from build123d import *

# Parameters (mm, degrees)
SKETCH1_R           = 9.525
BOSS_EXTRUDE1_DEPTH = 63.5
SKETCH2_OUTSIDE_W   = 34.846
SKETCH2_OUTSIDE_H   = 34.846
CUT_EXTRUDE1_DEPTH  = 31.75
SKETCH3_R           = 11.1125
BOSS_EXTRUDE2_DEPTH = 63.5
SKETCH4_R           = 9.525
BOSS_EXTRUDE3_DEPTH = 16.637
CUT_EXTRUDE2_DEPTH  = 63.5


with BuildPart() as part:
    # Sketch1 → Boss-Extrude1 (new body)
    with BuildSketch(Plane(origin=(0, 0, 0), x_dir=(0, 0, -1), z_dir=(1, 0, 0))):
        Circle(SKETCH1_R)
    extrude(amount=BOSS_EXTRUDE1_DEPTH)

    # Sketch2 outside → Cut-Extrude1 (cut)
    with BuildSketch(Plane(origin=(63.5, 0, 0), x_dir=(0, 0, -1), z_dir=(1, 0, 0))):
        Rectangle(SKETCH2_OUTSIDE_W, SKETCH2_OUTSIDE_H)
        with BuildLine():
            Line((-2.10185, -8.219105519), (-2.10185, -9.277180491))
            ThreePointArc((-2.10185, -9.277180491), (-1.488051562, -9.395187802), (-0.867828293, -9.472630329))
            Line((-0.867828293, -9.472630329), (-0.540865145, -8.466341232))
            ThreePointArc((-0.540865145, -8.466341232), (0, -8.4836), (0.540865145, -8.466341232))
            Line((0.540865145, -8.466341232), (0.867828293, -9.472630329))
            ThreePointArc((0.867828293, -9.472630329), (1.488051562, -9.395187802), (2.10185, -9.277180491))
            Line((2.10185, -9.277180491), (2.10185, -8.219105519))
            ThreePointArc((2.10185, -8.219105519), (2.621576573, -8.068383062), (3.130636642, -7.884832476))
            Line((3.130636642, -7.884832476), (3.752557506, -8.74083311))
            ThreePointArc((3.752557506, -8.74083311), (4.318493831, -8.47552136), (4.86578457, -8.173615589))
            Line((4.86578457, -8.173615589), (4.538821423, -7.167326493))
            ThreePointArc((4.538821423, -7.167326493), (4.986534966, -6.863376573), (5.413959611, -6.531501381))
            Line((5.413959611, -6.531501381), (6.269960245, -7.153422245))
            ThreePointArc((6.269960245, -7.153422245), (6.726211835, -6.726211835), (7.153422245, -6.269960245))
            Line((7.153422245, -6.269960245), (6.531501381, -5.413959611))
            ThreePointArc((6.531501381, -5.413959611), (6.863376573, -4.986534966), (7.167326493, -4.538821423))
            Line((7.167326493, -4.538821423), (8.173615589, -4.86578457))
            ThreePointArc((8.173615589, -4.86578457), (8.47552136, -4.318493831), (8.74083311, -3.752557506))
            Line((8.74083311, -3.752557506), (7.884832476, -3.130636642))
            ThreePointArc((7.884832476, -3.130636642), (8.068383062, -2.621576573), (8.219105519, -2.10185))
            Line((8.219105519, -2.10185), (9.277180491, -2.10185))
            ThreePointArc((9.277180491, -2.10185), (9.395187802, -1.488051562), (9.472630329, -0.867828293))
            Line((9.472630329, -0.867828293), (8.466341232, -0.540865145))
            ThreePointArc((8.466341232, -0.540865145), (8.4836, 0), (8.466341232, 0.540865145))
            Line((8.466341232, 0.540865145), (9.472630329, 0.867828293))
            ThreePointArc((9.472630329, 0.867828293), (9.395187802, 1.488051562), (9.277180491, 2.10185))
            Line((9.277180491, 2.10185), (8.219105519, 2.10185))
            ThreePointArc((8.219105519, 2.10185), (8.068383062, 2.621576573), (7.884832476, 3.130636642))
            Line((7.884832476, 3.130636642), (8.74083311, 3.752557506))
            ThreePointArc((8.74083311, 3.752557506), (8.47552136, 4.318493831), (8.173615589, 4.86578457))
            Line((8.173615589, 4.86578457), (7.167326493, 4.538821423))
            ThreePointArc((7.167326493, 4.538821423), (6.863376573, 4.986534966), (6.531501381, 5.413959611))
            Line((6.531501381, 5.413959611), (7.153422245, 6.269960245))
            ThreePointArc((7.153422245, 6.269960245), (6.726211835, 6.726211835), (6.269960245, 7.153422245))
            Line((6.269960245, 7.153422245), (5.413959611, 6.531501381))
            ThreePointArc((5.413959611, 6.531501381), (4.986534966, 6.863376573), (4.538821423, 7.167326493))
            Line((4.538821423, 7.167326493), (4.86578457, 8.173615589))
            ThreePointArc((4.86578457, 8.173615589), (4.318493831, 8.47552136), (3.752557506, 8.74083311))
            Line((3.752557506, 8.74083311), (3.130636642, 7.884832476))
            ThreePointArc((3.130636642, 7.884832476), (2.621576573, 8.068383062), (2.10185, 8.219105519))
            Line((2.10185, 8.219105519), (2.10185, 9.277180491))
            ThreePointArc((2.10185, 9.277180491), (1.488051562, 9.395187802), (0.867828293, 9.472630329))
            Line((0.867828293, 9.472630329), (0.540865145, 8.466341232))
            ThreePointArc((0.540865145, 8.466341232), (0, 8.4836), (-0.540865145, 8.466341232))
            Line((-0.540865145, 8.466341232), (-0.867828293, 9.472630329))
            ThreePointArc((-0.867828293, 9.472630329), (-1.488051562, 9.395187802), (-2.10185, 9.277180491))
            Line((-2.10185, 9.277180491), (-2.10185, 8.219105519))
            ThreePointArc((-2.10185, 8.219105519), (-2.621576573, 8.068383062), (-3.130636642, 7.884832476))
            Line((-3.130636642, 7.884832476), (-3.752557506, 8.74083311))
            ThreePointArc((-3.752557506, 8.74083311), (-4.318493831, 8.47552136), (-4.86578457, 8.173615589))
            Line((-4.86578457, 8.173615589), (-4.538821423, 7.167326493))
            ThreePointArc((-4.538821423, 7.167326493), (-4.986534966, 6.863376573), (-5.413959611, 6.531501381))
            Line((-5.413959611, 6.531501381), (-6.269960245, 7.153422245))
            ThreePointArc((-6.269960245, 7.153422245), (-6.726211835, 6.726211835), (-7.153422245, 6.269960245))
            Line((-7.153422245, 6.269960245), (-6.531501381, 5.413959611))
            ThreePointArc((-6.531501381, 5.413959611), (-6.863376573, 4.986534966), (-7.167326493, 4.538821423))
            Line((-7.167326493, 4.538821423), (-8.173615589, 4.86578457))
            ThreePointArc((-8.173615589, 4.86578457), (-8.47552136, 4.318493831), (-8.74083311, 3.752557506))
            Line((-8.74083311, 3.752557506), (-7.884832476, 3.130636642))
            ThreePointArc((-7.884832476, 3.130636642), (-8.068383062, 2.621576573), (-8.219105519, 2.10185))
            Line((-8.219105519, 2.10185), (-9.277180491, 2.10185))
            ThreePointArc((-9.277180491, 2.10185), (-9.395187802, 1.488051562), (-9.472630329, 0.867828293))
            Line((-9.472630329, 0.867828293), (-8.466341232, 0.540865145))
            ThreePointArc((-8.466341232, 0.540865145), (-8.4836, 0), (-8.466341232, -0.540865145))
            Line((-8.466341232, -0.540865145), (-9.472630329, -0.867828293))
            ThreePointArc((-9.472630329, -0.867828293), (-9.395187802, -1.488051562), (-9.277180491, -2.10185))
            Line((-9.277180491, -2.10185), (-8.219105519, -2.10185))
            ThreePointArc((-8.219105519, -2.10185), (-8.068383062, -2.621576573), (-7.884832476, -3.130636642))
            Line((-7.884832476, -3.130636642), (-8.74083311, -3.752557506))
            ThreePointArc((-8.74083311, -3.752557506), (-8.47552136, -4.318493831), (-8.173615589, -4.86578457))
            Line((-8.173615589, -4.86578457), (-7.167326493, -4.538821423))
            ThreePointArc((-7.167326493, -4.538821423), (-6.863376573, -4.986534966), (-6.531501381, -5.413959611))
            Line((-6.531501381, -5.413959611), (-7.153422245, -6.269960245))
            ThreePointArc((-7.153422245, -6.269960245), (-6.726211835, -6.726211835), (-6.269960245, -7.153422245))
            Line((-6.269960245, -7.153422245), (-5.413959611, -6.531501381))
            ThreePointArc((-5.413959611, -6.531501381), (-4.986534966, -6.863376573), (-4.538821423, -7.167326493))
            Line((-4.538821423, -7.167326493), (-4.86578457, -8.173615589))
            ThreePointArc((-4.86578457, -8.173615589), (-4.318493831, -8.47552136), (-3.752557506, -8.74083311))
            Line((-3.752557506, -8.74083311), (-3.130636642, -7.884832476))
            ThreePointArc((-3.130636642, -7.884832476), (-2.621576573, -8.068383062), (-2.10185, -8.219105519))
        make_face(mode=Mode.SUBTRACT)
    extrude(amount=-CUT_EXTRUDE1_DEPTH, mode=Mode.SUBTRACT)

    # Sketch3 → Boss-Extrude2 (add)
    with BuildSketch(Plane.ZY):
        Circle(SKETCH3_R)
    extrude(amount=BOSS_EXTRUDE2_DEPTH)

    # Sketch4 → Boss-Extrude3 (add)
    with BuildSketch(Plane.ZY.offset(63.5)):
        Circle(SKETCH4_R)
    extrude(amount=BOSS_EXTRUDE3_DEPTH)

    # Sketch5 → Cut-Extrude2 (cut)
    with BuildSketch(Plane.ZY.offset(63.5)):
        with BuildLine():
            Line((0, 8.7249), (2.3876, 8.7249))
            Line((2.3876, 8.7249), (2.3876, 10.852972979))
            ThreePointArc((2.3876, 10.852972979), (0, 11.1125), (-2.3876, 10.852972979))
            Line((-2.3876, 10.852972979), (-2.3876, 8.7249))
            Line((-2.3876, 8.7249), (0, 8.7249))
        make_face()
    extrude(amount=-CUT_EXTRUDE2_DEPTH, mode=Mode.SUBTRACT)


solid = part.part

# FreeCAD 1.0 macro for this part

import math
import FreeCAD as App
import Part
import Sketcher
from FreeCAD import Vector
Q = App.Units.Quantity


def add_polygon(sketch, points):
    """Adds a closed chain of lines whose ends are joined by coincident constraints."""
    first, n = sketch.GeometryCount, len(points)
    for a, b in zip(points, points[1:] + points[:1]):
        sketch.addGeometry(Part.LineSegment(App.Vector(*a, 0), App.Vector(*b, 0)), False)
    for i in range(n):
        sketch.addConstraint(Sketcher.Constraint("Coincident", first + i, 2, first + (i + 1) % n, 1))

doc = App.newDocument("Part")
body = doc.addObject("PartDesign::Body", "Body")

# Sketch on YZ plane
sketch1 = doc.addObject("Sketcher::SketchObject", "Sketch")
body.addObject(sketch1)
sketch1.AttachmentSupport = (doc.YZ_Plane, [""])
sketch1.MapMode = "FlatFace"
sketch1.addGeometry(Part.Circle(Vector(0, 0, 0), Vector(0, 0, 1), 10), False)
sketch1.addConstraint([
    Sketcher.Constraint("Coincident", 0, 3, -1, 1),
    Sketcher.Constraint("Diameter", 0, Q("0.75 in")),
])
pad1 = doc.addObject("PartDesign::Pad", "Pad")
body.addObject(pad1)
pad1.Profile = sketch1
pad1.Length = Q("2.5 in")

# Sketch on YZ plane
sketch2 = doc.addObject("Sketcher::SketchObject", "Sketch001")
body.addObject(sketch2)
sketch2.AttachmentSupport = (doc.YZ_Plane, [""])
sketch2.MapMode = "FlatFace"
sketch2.AttachmentOffset = App.Placement(Vector(0, 0, 2.5 * 25.4), App.Rotation())
add_polygon(sketch2, [(17.4, 17.4), (-17.4, 17.4), (-17.4, -17.4), (17.4, -17.4)])  # lines 0-3
sketch2.addGeometry(Part.LineSegment(Vector(-9.3, 2.1, 0), Vector(-8.2, 2.1, 0)), False)  # 4
sketch2.addGeometry(Part.ArcOfCircle(Part.Circle(Vector(0, 0, 0), Vector(0, 0, 1), 8.5), math.radians(158.34), math.radians(165.66)), False)  # 5
sketch2.addGeometry(Part.LineSegment(Vector(-7.9, 3.1, 0), Vector(-8.7, 3.8, 0)), False)  # 6
sketch2.addGeometry(Part.ArcOfCircle(Part.Circle(Vector(0, 0, 0), Vector(0, 0, 1), 9.5), math.radians(149.23), math.radians(156.77)), False)  # 7
sketch2.addGeometry(Part.LineSegment(Vector(-8.2, 4.9, 0), Vector(-7.2, 4.5, 0)), False)  # 8
sketch2.addGeometry(Part.ArcOfCircle(Part.Circle(Vector(0, 0, 0), Vector(0, 0, 1), 8.5), math.radians(140.34), math.radians(147.66)), False)  # 9
sketch2.addGeometry(Part.LineSegment(Vector(-6.5, 5.4, 0), Vector(-7.2, 6.3, 0)), False)  # 10
sketch2.addGeometry(Part.ArcOfCircle(Part.Circle(Vector(0, 0, 0), Vector(0, 0, 1), 9.5), math.radians(131.23), math.radians(138.77)), False)  # 11
sketch2.addGeometry(Part.LineSegment(Vector(-6.3, 7.2, 0), Vector(-5.4, 6.5, 0)), False)  # 12
sketch2.addGeometry(Part.ArcOfCircle(Part.Circle(Vector(0, 0, 0), Vector(0, 0, 1), 8.5), math.radians(122.34), math.radians(129.66)), False)  # 13
sketch2.addGeometry(Part.LineSegment(Vector(-4.5, 7.2, 0), Vector(-4.9, 8.2, 0)), False)  # 14
sketch2.addGeometry(Part.ArcOfCircle(Part.Circle(Vector(0, 0, 0), Vector(0, 0, 1), 9.5), math.radians(113.23), math.radians(120.77)), False)  # 15
sketch2.addGeometry(Part.LineSegment(Vector(-3.8, 8.7, 0), Vector(-3.1, 7.9, 0)), False)  # 16
sketch2.addGeometry(Part.ArcOfCircle(Part.Circle(Vector(0, 0, 0), Vector(0, 0, 1), 8.5), math.radians(104.34), math.radians(111.66)), False)  # 17
sketch2.addGeometry(Part.LineSegment(Vector(-2.1, 8.2, 0), Vector(-2.1, 9.3, 0)), False)  # 18
sketch2.addGeometry(Part.ArcOfCircle(Part.Circle(Vector(0, 0, 0), Vector(0, 0, 1), 9.5), math.radians(95.23), math.radians(102.77)), False)  # 19
sketch2.addGeometry(Part.LineSegment(Vector(-0.9, 9.5, 0), Vector(-0.5, 8.5, 0)), False)  # 20
sketch2.addGeometry(Part.ArcOfCircle(Part.Circle(Vector(0, 0, 0), Vector(0, 0, 1), 8.5), math.radians(86.34), math.radians(93.66)), False)  # 21
sketch2.addGeometry(Part.LineSegment(Vector(0.5, 8.5, 0), Vector(0.9, 9.5, 0)), False)  # 22
sketch2.addGeometry(Part.ArcOfCircle(Part.Circle(Vector(0, 0, 0), Vector(0, 0, 1), 9.5), math.radians(77.23), math.radians(84.77)), False)  # 23
sketch2.addGeometry(Part.LineSegment(Vector(2.1, 9.3, 0), Vector(2.1, 8.2, 0)), False)  # 24
sketch2.addGeometry(Part.ArcOfCircle(Part.Circle(Vector(0, 0, 0), Vector(0, 0, 1), 8.5), math.radians(68.34), math.radians(75.66)), False)  # 25
sketch2.addGeometry(Part.LineSegment(Vector(3.1, 7.9, 0), Vector(3.8, 8.7, 0)), False)  # 26
sketch2.addGeometry(Part.ArcOfCircle(Part.Circle(Vector(0, 0, 0), Vector(0, 0, 1), 9.5), math.radians(59.23), math.radians(66.77)), False)  # 27
sketch2.addGeometry(Part.LineSegment(Vector(4.9, 8.2, 0), Vector(4.5, 7.2, 0)), False)  # 28
sketch2.addGeometry(Part.ArcOfCircle(Part.Circle(Vector(0, 0, 0), Vector(0, 0, 1), 8.5), math.radians(50.34), math.radians(57.66)), False)  # 29
sketch2.addGeometry(Part.LineSegment(Vector(5.4, 6.5, 0), Vector(6.3, 7.2, 0)), False)  # 30
sketch2.addGeometry(Part.ArcOfCircle(Part.Circle(Vector(0, 0, 0), Vector(0, 0, 1), 9.5), math.radians(41.23), math.radians(48.77)), False)  # 31
sketch2.addGeometry(Part.LineSegment(Vector(7.2, 6.3, 0), Vector(6.5, 5.4, 0)), False)  # 32
sketch2.addGeometry(Part.ArcOfCircle(Part.Circle(Vector(0, 0, 0), Vector(0, 0, 1), 8.5), math.radians(32.34), math.radians(39.66)), False)  # 33
sketch2.addGeometry(Part.LineSegment(Vector(7.2, 4.5, 0), Vector(8.2, 4.9, 0)), False)  # 34
sketch2.addGeometry(Part.ArcOfCircle(Part.Circle(Vector(0, 0, 0), Vector(0, 0, 1), 9.5), math.radians(23.23), math.radians(30.77)), False)  # 35
sketch2.addGeometry(Part.LineSegment(Vector(8.7, 3.8, 0), Vector(7.9, 3.1, 0)), False)  # 36
sketch2.addGeometry(Part.ArcOfCircle(Part.Circle(Vector(0, 0, 0), Vector(0, 0, 1), 8.5), math.radians(14.34), math.radians(21.66)), False)  # 37
sketch2.addGeometry(Part.LineSegment(Vector(8.2, 2.1, 0), Vector(9.3, 2.1, 0)), False)  # 38
sketch2.addGeometry(Part.ArcOfCircle(Part.Circle(Vector(0, 0, 0), Vector(0, 0, 1), 9.5), math.radians(5.23), math.radians(12.77)), False)  # 39
sketch2.addGeometry(Part.LineSegment(Vector(9.5, 0.9, 0), Vector(8.5, 0.5, 0)), False)  # 40
sketch2.addGeometry(Part.ArcOfCircle(Part.Circle(Vector(0, 0, 0), Vector(0, 0, 1), 8.5), math.radians(-3.66), math.radians(3.66)), False)  # 41
sketch2.addGeometry(Part.LineSegment(Vector(8.5, -0.5, 0), Vector(9.5, -0.9, 0)), False)  # 42
sketch2.addGeometry(Part.ArcOfCircle(Part.Circle(Vector(0, 0, 0), Vector(0, 0, 1), 9.5), math.radians(-12.77), math.radians(-5.23)), False)  # 43
sketch2.addGeometry(Part.LineSegment(Vector(9.3, -2.1, 0), Vector(8.2, -2.1, 0)), False)  # 44
sketch2.addGeometry(Part.ArcOfCircle(Part.Circle(Vector(0, 0, 0), Vector(0, 0, 1), 8.5), math.radians(-21.66), math.radians(-14.34)), False)  # 45
sketch2.addGeometry(Part.LineSegment(Vector(7.9, -3.1, 0), Vector(8.7, -3.8, 0)), False)  # 46
sketch2.addGeometry(Part.ArcOfCircle(Part.Circle(Vector(0, 0, 0), Vector(0, 0, 1), 9.5), math.radians(-30.77), math.radians(-23.23)), False)  # 47
sketch2.addGeometry(Part.LineSegment(Vector(8.2, -4.9, 0), Vector(7.2, -4.5, 0)), False)  # 48
sketch2.addGeometry(Part.ArcOfCircle(Part.Circle(Vector(0, 0, 0), Vector(0, 0, 1), 8.5), math.radians(-39.66), math.radians(-32.34)), False)  # 49
sketch2.addGeometry(Part.LineSegment(Vector(6.5, -5.4, 0), Vector(7.2, -6.3, 0)), False)  # 50
sketch2.addGeometry(Part.ArcOfCircle(Part.Circle(Vector(0, 0, 0), Vector(0, 0, 1), 9.5), math.radians(-48.77), math.radians(-41.23)), False)  # 51
sketch2.addGeometry(Part.LineSegment(Vector(6.3, -7.2, 0), Vector(5.4, -6.5, 0)), False)  # 52
sketch2.addGeometry(Part.ArcOfCircle(Part.Circle(Vector(0, 0, 0), Vector(0, 0, 1), 8.5), math.radians(-57.66), math.radians(-50.34)), False)  # 53
sketch2.addGeometry(Part.LineSegment(Vector(4.5, -7.2, 0), Vector(4.9, -8.2, 0)), False)  # 54
sketch2.addGeometry(Part.ArcOfCircle(Part.Circle(Vector(0, 0, 0), Vector(0, 0, 1), 9.5), math.radians(-66.77), math.radians(-59.23)), False)  # 55
sketch2.addGeometry(Part.LineSegment(Vector(3.8, -8.7, 0), Vector(3.1, -7.9, 0)), False)  # 56
sketch2.addGeometry(Part.ArcOfCircle(Part.Circle(Vector(0, 0, 0), Vector(0, 0, 1), 8.5), math.radians(-75.66), math.radians(-68.34)), False)  # 57
sketch2.addGeometry(Part.LineSegment(Vector(2.1, -8.2, 0), Vector(2.1, -9.3, 0)), False)  # 58
sketch2.addGeometry(Part.ArcOfCircle(Part.Circle(Vector(0, 0, 0), Vector(0, 0, 1), 9.5), math.radians(-84.77), math.radians(-77.23)), False)  # 59
sketch2.addGeometry(Part.LineSegment(Vector(0.9, -9.5, 0), Vector(0.5, -8.5, 0)), False)  # 60
sketch2.addGeometry(Part.ArcOfCircle(Part.Circle(Vector(0, 0, 0), Vector(0, 0, 1), 8.5), math.radians(-93.66), math.radians(-86.34)), False)  # 61
sketch2.addGeometry(Part.LineSegment(Vector(-0.5, -8.5, 0), Vector(-0.9, -9.5, 0)), False)  # 62
sketch2.addGeometry(Part.ArcOfCircle(Part.Circle(Vector(0, 0, 0), Vector(0, 0, 1), 9.5), math.radians(-102.77), math.radians(-95.23)), False)  # 63
sketch2.addGeometry(Part.LineSegment(Vector(-2.1, -9.3, 0), Vector(-2.1, -8.2, 0)), False)  # 64
sketch2.addGeometry(Part.ArcOfCircle(Part.Circle(Vector(0, 0, 0), Vector(0, 0, 1), 8.5), math.radians(-111.66), math.radians(-104.34)), False)  # 65
sketch2.addGeometry(Part.LineSegment(Vector(-3.1, -7.9, 0), Vector(-3.8, -8.7, 0)), False)  # 66
sketch2.addGeometry(Part.ArcOfCircle(Part.Circle(Vector(0, 0, 0), Vector(0, 0, 1), 9.5), math.radians(-120.77), math.radians(-113.23)), False)  # 67
sketch2.addGeometry(Part.LineSegment(Vector(-4.9, -8.2, 0), Vector(-4.5, -7.2, 0)), False)  # 68
sketch2.addGeometry(Part.ArcOfCircle(Part.Circle(Vector(0, 0, 0), Vector(0, 0, 1), 8.5), math.radians(-129.66), math.radians(-122.34)), False)  # 69
sketch2.addGeometry(Part.LineSegment(Vector(-5.4, -6.5, 0), Vector(-6.3, -7.2, 0)), False)  # 70
sketch2.addGeometry(Part.ArcOfCircle(Part.Circle(Vector(0, 0, 0), Vector(0, 0, 1), 9.5), math.radians(-138.77), math.radians(-131.23)), False)  # 71
sketch2.addGeometry(Part.LineSegment(Vector(-7.2, -6.3, 0), Vector(-6.5, -5.4, 0)), False)  # 72
sketch2.addGeometry(Part.ArcOfCircle(Part.Circle(Vector(0, 0, 0), Vector(0, 0, 1), 8.5), math.radians(-147.66), math.radians(-140.34)), False)  # 73
sketch2.addGeometry(Part.LineSegment(Vector(-7.2, -4.5, 0), Vector(-8.2, -4.9, 0)), False)  # 74
sketch2.addGeometry(Part.ArcOfCircle(Part.Circle(Vector(0, 0, 0), Vector(0, 0, 1), 9.5), math.radians(-156.77), math.radians(-149.23)), False)  # 75
sketch2.addGeometry(Part.LineSegment(Vector(-8.7, -3.8, 0), Vector(-7.9, -3.1, 0)), False)  # 76
sketch2.addGeometry(Part.ArcOfCircle(Part.Circle(Vector(0, 0, 0), Vector(0, 0, 1), 8.5), math.radians(-165.66), math.radians(-158.34)), False)  # 77
sketch2.addGeometry(Part.LineSegment(Vector(-8.2, -2.1, 0), Vector(-9.3, -2.1, 0)), False)  # 78
sketch2.addGeometry(Part.ArcOfCircle(Part.Circle(Vector(0, 0, 0), Vector(0, 0, 1), 9.5), math.radians(-174.77), math.radians(-167.23)), False)  # 79
sketch2.addGeometry(Part.LineSegment(Vector(-9.5, -0.9, 0), Vector(-8.5, -0.5, 0)), False)  # 80
sketch2.addGeometry(Part.ArcOfCircle(Part.Circle(Vector(0, 0, 0), Vector(0, 0, 1), 8.5), math.radians(176.34), math.radians(183.66)), False)  # 81
sketch2.addGeometry(Part.LineSegment(Vector(-8.5, 0.5, 0), Vector(-9.5, 0.9, 0)), False)  # 82
sketch2.addGeometry(Part.ArcOfCircle(Part.Circle(Vector(0, 0, 0), Vector(0, 0, 1), 9.5), math.radians(167.23), math.radians(174.77)), False)  # 83
sketch2.addConstraint([
    Sketcher.Constraint("Coincident", 4, 2, 5, 2),
    Sketcher.Constraint("Coincident", 5, 1, 6, 1),
    Sketcher.Constraint("Coincident", 6, 2, 7, 2),
    Sketcher.Constraint("Coincident", 7, 1, 8, 1),
    Sketcher.Constraint("Coincident", 8, 2, 9, 2),
    Sketcher.Constraint("Coincident", 9, 1, 10, 1),
    Sketcher.Constraint("Coincident", 10, 2, 11, 2),
    Sketcher.Constraint("Coincident", 11, 1, 12, 1),
    Sketcher.Constraint("Coincident", 12, 2, 13, 2),
    Sketcher.Constraint("Coincident", 13, 1, 14, 1),
    Sketcher.Constraint("Coincident", 14, 2, 15, 2),
    Sketcher.Constraint("Coincident", 15, 1, 16, 1),
    Sketcher.Constraint("Coincident", 16, 2, 17, 2),
    Sketcher.Constraint("Coincident", 17, 1, 18, 1),
    Sketcher.Constraint("Coincident", 18, 2, 19, 2),
    Sketcher.Constraint("Coincident", 19, 1, 20, 1),
    Sketcher.Constraint("Coincident", 20, 2, 21, 2),
    Sketcher.Constraint("Coincident", 21, 1, 22, 1),
    Sketcher.Constraint("Coincident", 22, 2, 23, 2),
    Sketcher.Constraint("Coincident", 23, 1, 24, 1),
    Sketcher.Constraint("Coincident", 24, 2, 25, 2),
    Sketcher.Constraint("Coincident", 25, 1, 26, 1),
    Sketcher.Constraint("Coincident", 26, 2, 27, 2),
    Sketcher.Constraint("Coincident", 27, 1, 28, 1),
    Sketcher.Constraint("Coincident", 28, 2, 29, 2),
    Sketcher.Constraint("Coincident", 29, 1, 30, 1),
    Sketcher.Constraint("Coincident", 30, 2, 31, 2),
    Sketcher.Constraint("Coincident", 31, 1, 32, 1),
    Sketcher.Constraint("Coincident", 32, 2, 33, 2),
    Sketcher.Constraint("Coincident", 33, 1, 34, 1),
    Sketcher.Constraint("Coincident", 34, 2, 35, 2),
    Sketcher.Constraint("Coincident", 35, 1, 36, 1),
    Sketcher.Constraint("Coincident", 36, 2, 37, 2),
    Sketcher.Constraint("Coincident", 37, 1, 38, 1),
    Sketcher.Constraint("Coincident", 38, 2, 39, 2),
    Sketcher.Constraint("Coincident", 39, 1, 40, 1),
    Sketcher.Constraint("Coincident", 40, 2, 41, 2),
    Sketcher.Constraint("Coincident", 41, 1, 42, 1),
    Sketcher.Constraint("Coincident", 42, 2, 43, 2),
    Sketcher.Constraint("Coincident", 43, 1, 44, 1),
    Sketcher.Constraint("Coincident", 44, 2, 45, 2),
    Sketcher.Constraint("Coincident", 45, 1, 46, 1),
    Sketcher.Constraint("Coincident", 46, 2, 47, 2),
    Sketcher.Constraint("Coincident", 47, 1, 48, 1),
    Sketcher.Constraint("Coincident", 48, 2, 49, 2),
    Sketcher.Constraint("Coincident", 49, 1, 50, 1),
    Sketcher.Constraint("Coincident", 50, 2, 51, 2),
    Sketcher.Constraint("Coincident", 51, 1, 52, 1),
    Sketcher.Constraint("Coincident", 52, 2, 53, 2),
    Sketcher.Constraint("Coincident", 53, 1, 54, 1),
    Sketcher.Constraint("Coincident", 54, 2, 55, 2),
    Sketcher.Constraint("Coincident", 55, 1, 56, 1),
    Sketcher.Constraint("Coincident", 56, 2, 57, 2),
    Sketcher.Constraint("Coincident", 57, 1, 58, 1),
    Sketcher.Constraint("Coincident", 58, 2, 59, 2),
    Sketcher.Constraint("Coincident", 59, 1, 60, 1),
    Sketcher.Constraint("Coincident", 60, 2, 61, 2),
    Sketcher.Constraint("Coincident", 61, 1, 62, 1),
    Sketcher.Constraint("Coincident", 62, 2, 63, 2),
    Sketcher.Constraint("Coincident", 63, 1, 64, 1),
    Sketcher.Constraint("Coincident", 64, 2, 65, 2),
    Sketcher.Constraint("Coincident", 65, 1, 66, 1),
    Sketcher.Constraint("Coincident", 66, 2, 67, 2),
    Sketcher.Constraint("Coincident", 67, 1, 68, 1),
    Sketcher.Constraint("Coincident", 68, 2, 69, 2),
    Sketcher.Constraint("Coincident", 69, 1, 70, 1),
    Sketcher.Constraint("Coincident", 70, 2, 71, 2),
    Sketcher.Constraint("Coincident", 71, 1, 72, 1),
    Sketcher.Constraint("Coincident", 72, 2, 73, 2),
    Sketcher.Constraint("Coincident", 73, 1, 74, 1),
    Sketcher.Constraint("Coincident", 74, 2, 75, 2),
    Sketcher.Constraint("Coincident", 75, 1, 76, 1),
    Sketcher.Constraint("Coincident", 76, 2, 77, 2),
    Sketcher.Constraint("Coincident", 77, 1, 78, 1),
    Sketcher.Constraint("Coincident", 78, 2, 79, 2),
    Sketcher.Constraint("Coincident", 79, 1, 80, 1),
    Sketcher.Constraint("Coincident", 80, 2, 81, 2),
    Sketcher.Constraint("Coincident", 81, 1, 82, 1),
    Sketcher.Constraint("Coincident", 82, 2, 83, 2),
    Sketcher.Constraint("Coincident", 83, 1, 4, 1),
    Sketcher.Constraint("Horizontal", 0),
    Sketcher.Constraint("Vertical", 1),
    Sketcher.Constraint("Horizontal", 2),
    Sketcher.Constraint("Vertical", 3),
    Sketcher.Constraint("Horizontal", 4),
    Sketcher.Constraint("Vertical", 18),
    Sketcher.Constraint("Vertical", 24),
    Sketcher.Constraint("Horizontal", 38),
    Sketcher.Constraint("Horizontal", 44),
    Sketcher.Constraint("Vertical", 58),
    Sketcher.Constraint("Vertical", 64),
    Sketcher.Constraint("Horizontal", 78),
    Sketcher.Constraint("Coincident", 5, 3, -1, 1),
    Sketcher.Constraint("Coincident", 7, 3, -1, 1),
    Sketcher.Constraint("Coincident", 9, 3, -1, 1),
    Sketcher.Constraint("Coincident", 11, 3, -1, 1),
    Sketcher.Constraint("Coincident", 13, 3, -1, 1),
    Sketcher.Constraint("Coincident", 15, 3, -1, 1),
    Sketcher.Constraint("Coincident", 17, 3, -1, 1),
    Sketcher.Constraint("Coincident", 19, 3, -1, 1),
    Sketcher.Constraint("Coincident", 21, 3, -1, 1),
    Sketcher.Constraint("Coincident", 23, 3, -1, 1),
    Sketcher.Constraint("Coincident", 25, 3, -1, 1),
    Sketcher.Constraint("Coincident", 27, 3, -1, 1),
    Sketcher.Constraint("Coincident", 29, 3, -1, 1),
    Sketcher.Constraint("Coincident", 31, 3, -1, 1),
    Sketcher.Constraint("Coincident", 33, 3, -1, 1),
    Sketcher.Constraint("Coincident", 35, 3, -1, 1),
    Sketcher.Constraint("Coincident", 37, 3, -1, 1),
    Sketcher.Constraint("Coincident", 39, 3, -1, 1),
    Sketcher.Constraint("Coincident", 41, 3, -1, 1),
    Sketcher.Constraint("Coincident", 43, 3, -1, 1),
    Sketcher.Constraint("Coincident", 45, 3, -1, 1),
    Sketcher.Constraint("Coincident", 47, 3, -1, 1),
    Sketcher.Constraint("Coincident", 49, 3, -1, 1),
    Sketcher.Constraint("Coincident", 51, 3, -1, 1),
    Sketcher.Constraint("Coincident", 53, 3, -1, 1),
    Sketcher.Constraint("Coincident", 55, 3, -1, 1),
    Sketcher.Constraint("Coincident", 57, 3, -1, 1),
    Sketcher.Constraint("Coincident", 59, 3, -1, 1),
    Sketcher.Constraint("Coincident", 61, 3, -1, 1),
    Sketcher.Constraint("Coincident", 63, 3, -1, 1),
    Sketcher.Constraint("Coincident", 65, 3, -1, 1),
    Sketcher.Constraint("Coincident", 67, 3, -1, 1),
    Sketcher.Constraint("Coincident", 69, 3, -1, 1),
    Sketcher.Constraint("Coincident", 71, 3, -1, 1),
    Sketcher.Constraint("Coincident", 73, 3, -1, 1),
    Sketcher.Constraint("Coincident", 75, 3, -1, 1),
    Sketcher.Constraint("Coincident", 77, 3, -1, 1),
    Sketcher.Constraint("Coincident", 79, 3, -1, 1),
    Sketcher.Constraint("Coincident", 81, 3, -1, 1),
    Sketcher.Constraint("Coincident", 83, 3, -1, 1),
    Sketcher.Constraint("Equal", 5, 9),
    Sketcher.Constraint("Equal", 7, 11),
    Sketcher.Constraint("Equal", 9, 13),
    Sketcher.Constraint("Equal", 11, 15),
    Sketcher.Constraint("Equal", 13, 17),
    Sketcher.Constraint("Equal", 15, 19),
    Sketcher.Constraint("Equal", 17, 21),
    Sketcher.Constraint("Equal", 19, 23),
    Sketcher.Constraint("Equal", 21, 25),
    Sketcher.Constraint("Equal", 23, 27),
    Sketcher.Constraint("Equal", 25, 29),
    Sketcher.Constraint("Equal", 27, 31),
    Sketcher.Constraint("Equal", 29, 33),
    Sketcher.Constraint("Equal", 31, 35),
    Sketcher.Constraint("Equal", 33, 37),
    Sketcher.Constraint("Equal", 35, 39),
    Sketcher.Constraint("Equal", 37, 41),
    Sketcher.Constraint("Equal", 39, 43),
    Sketcher.Constraint("Equal", 41, 45),
    Sketcher.Constraint("Equal", 43, 47),
    Sketcher.Constraint("Equal", 45, 49),
    Sketcher.Constraint("Equal", 47, 51),
    Sketcher.Constraint("Equal", 49, 53),
    Sketcher.Constraint("Equal", 51, 55),
    Sketcher.Constraint("Equal", 53, 57),
    Sketcher.Constraint("Equal", 55, 59),
    Sketcher.Constraint("Equal", 57, 61),
    Sketcher.Constraint("Equal", 59, 63),
    Sketcher.Constraint("Equal", 61, 65),
    Sketcher.Constraint("Equal", 63, 67),
    Sketcher.Constraint("Equal", 65, 69),
    Sketcher.Constraint("Equal", 67, 71),
    Sketcher.Constraint("Equal", 69, 73),
    Sketcher.Constraint("Equal", 71, 75),
    Sketcher.Constraint("Equal", 73, 77),
    Sketcher.Constraint("Equal", 75, 79),
    Sketcher.Constraint("Equal", 77, 81),
    Sketcher.Constraint("Equal", 79, 83),
    Sketcher.Constraint("Symmetric", 0, 2, 2, 2, -1, 1),
    Sketcher.Constraint("Parallel", 6, 12),
    Sketcher.Constraint("Parallel", 10, 16),
    Sketcher.Constraint("Parallel", 14, 20),
    Sketcher.Constraint("Perpendicular", 8, 22),
    Sketcher.Constraint("Perpendicular", 12, 26),
    Sketcher.Constraint("Parallel", 22, 28),
    Sketcher.Constraint("Perpendicular", 16, 30),
    Sketcher.Constraint("Parallel", 26, 32),
    Sketcher.Constraint("Perpendicular", 20, 34),
    Sketcher.Constraint("Parallel", 30, 36),
    Sketcher.Constraint("Parallel", 34, 40),
    Sketcher.Constraint("Perpendicular", 28, 42),
    Sketcher.Constraint("Perpendicular", 32, 46),
    Sketcher.Constraint("Parallel", 42, 48),
    Sketcher.Constraint("Perpendicular", 36, 50),
    Sketcher.Constraint("Parallel", 46, 52),
    Sketcher.Constraint("Perpendicular", 40, 54),
    Sketcher.Constraint("Parallel", 50, 56),
    Sketcher.Constraint("Parallel", 54, 60),
    Sketcher.Constraint("Perpendicular", 48, 62),
    Sketcher.Constraint("Perpendicular", 52, 66),
    Sketcher.Constraint("Parallel", 62, 68),
    Sketcher.Constraint("Perpendicular", 56, 70),
    Sketcher.Constraint("Parallel", 66, 72),
    Sketcher.Constraint("Perpendicular", 60, 74),
    Sketcher.Constraint("Parallel", 70, 76),
    Sketcher.Constraint("Parallel", 74, 80),
    Sketcher.Constraint("Perpendicular", 68, 82),
    Sketcher.Constraint("Horizontal", 20, 2, 21, 1),
    Sketcher.Constraint("Horizontal", 19, 1, 22, 2),
    Sketcher.Constraint("Horizontal", 18, 2, 23, 1),
    Sketcher.Constraint("Horizontal", 16, 2, 25, 1),
    Sketcher.Constraint("Horizontal", 15, 1, 26, 2),
    Sketcher.Constraint("Horizontal", 14, 2, 27, 1),
    Sketcher.Constraint("Horizontal", 12, 2, 29, 1),
    Sketcher.Constraint("Horizontal", 10, 2, 31, 1),
    Sketcher.Constraint("Horizontal", 8, 2, 33, 1),
    Sketcher.Constraint("Horizontal", 6, 2, 35, 1),
    Sketcher.Constraint("Horizontal", 4, 2, 37, 1),
    Sketcher.Constraint("Horizontal", 60, 2, 61, 1),
    Sketcher.Constraint("Horizontal", 58, 2, 63, 1),
    Sketcher.Constraint("Horizontal", 56, 2, 65, 1),
    Sketcher.Constraint("Horizontal", 54, 2, 67, 1),
    Sketcher.Constraint("Horizontal", 52, 2, 69, 1),
    Sketcher.Constraint("Horizontal", 50, 2, 71, 1),
    Sketcher.Constraint("Horizontal", 48, 2, 73, 1),
    Sketcher.Constraint("Horizontal", 46, 2, 75, 1),
    Sketcher.Constraint("Horizontal", 44, 2, 77, 1),
    Sketcher.Constraint("Horizontal", 42, 2, 79, 1),
    Sketcher.Constraint("Horizontal", 40, 2, 81, 1),
    Sketcher.Constraint("Vertical", 40, 2, 41, 1),
    Sketcher.Constraint("Vertical", 38, 2, 43, 1),
    Sketcher.Constraint("Vertical", 36, 2, 45, 1),
    Sketcher.Constraint("Vertical", 34, 2, 47, 1),
    Sketcher.Constraint("Vertical", 32, 2, 49, 1),
    Sketcher.Constraint("Vertical", 30, 2, 51, 1),
    Sketcher.Constraint("Vertical", 28, 2, 53, 1),
    Sketcher.Constraint("Vertical", 26, 2, 55, 1),
    Sketcher.Constraint("Vertical", 24, 2, 57, 1),
    Sketcher.Constraint("Vertical", 22, 2, 59, 1),
    Sketcher.Constraint("Equal", 2, 1),
    Sketcher.Constraint("Equal", 78, 18),
    Sketcher.Constraint("Equal", 6, 8),
    Sketcher.Constraint("Equal", 8, 10),
    Sketcher.Constraint("Equal", 10, 12),
    Sketcher.Constraint("Equal", 12, 14),
    Sketcher.Constraint("Equal", 14, 16),
    Sketcher.Constraint("Equal", 16, 20),
    Sketcher.Constraint("Equal", 36, 40),
    Sketcher.Constraint("Angle", 6, Q("144 deg")),
    Sketcher.Constraint("Angle", 8, Q("-18 deg")),
    Sketcher.Constraint("Radius", 5, Q("0.334 in")),
    Sketcher.Constraint("Radius", 7, Q("0.3745 in")),
    Sketcher.Constraint("DistanceX", 0, 2, 0, 1, 34.846),
    Sketcher.Constraint("DistanceX", 9, 1, -1, 1, 6.531501),
    Sketcher.Constraint("DistanceX", 4, 1, 4, 2, 1.058075),
])
pocket1 = doc.addObject("PartDesign::Pocket", "Pocket")
body.addObject(pocket1)
pocket1.Profile = sketch2
pocket1.Length = Q("1.25 in")

# Sketch on YZ plane
sketch3 = doc.addObject("Sketcher::SketchObject", "Sketch002")
body.addObject(sketch3)
sketch3.AttachmentSupport = (doc.YZ_Plane, [""])
sketch3.MapMode = "FlatFace"
sketch3.addGeometry(Part.Circle(Vector(0, 0, 0), Vector(0, 0, 1), 11), False)
sketch3.addConstraint([
    Sketcher.Constraint("Coincident", 0, 3, -1, 1),
    Sketcher.Constraint("Diameter", 0, Q("0.875 in")),
])
pad2 = doc.addObject("PartDesign::Pad", "Pad001")
body.addObject(pad2)
pad2.Profile = sketch3
pad2.Length = Q("2.5 in")
pad2.Reversed = True

# Sketch on YZ plane
sketch4 = doc.addObject("Sketcher::SketchObject", "Sketch003")
body.addObject(sketch4)
sketch4.AttachmentSupport = (doc.YZ_Plane, [""])
sketch4.MapMode = "FlatFace"
sketch4.AttachmentOffset = App.Placement(Vector(0, 0, -2.5 * 25.4), App.Rotation())
sketch4.addGeometry(Part.Circle(Vector(0, 0, 0), Vector(0, 0, 1), 10), False)
sketch4.addConstraint([
    Sketcher.Constraint("Coincident", 0, 3, -1, 1),
    Sketcher.Constraint("Diameter", 0, Q("0.75 in")),
])
pad3 = doc.addObject("PartDesign::Pad", "Pad002")
body.addObject(pad3)
pad3.Profile = sketch4
pad3.Length = Q("0.655 in")
pad3.Reversed = True

# Sketch on YZ plane
sketch5 = doc.addObject("Sketcher::SketchObject", "Sketch004")
body.addObject(sketch5)
sketch5.AttachmentSupport = (doc.YZ_Plane, [""])
sketch5.MapMode = "FlatFace"
sketch5.AttachmentOffset = App.Placement(Vector(0, 0, -2.5 * 25.4), App.Rotation())
sketch5.addGeometry([
    Part.LineSegment(Vector(8.7, 2.4, 0), Vector(10.9, 2.4, 0)),
    Part.ArcOfCircle(Part.Circle(Vector(0, 0, 0), Vector(0, 0, 1), 11.1), math.radians(-12), math.radians(12)),
    Part.LineSegment(Vector(10.9, -2.4, 0), Vector(8.7, -2.4, 0)),
    Part.LineSegment(Vector(8.7, -2.4, 0), Vector(8.7, 2.4, 0)),
], False)
sketch5.addConstraint([
    Sketcher.Constraint("Coincident", 0, 2, 1, 2),
    Sketcher.Constraint("Coincident", 1, 1, 2, 1),
    Sketcher.Constraint("Coincident", 2, 2, 3, 1),
    Sketcher.Constraint("Coincident", 3, 2, 0, 1),
    Sketcher.Constraint("Horizontal", 0),
    Sketcher.Constraint("Horizontal", 2),
    Sketcher.Constraint("Vertical", 3),
    Sketcher.Constraint("Coincident", 1, 3, -1, 1),
    Sketcher.Constraint("Vertical", 0, 2, 1, 1),
    Sketcher.Constraint("Radius", 1, Q("0.4375 in")),
    Sketcher.Constraint("DistanceY", 3, 1, 3, 2, Q("0.188 in")),
    Sketcher.Constraint("DistanceX", -1, 1, 2, 2, Q("0.3435 in")),
])
pocket2 = doc.addObject("PartDesign::Pocket", "Pocket001")
body.addObject(pocket2)
pocket2.Profile = sketch5
pocket2.Length = Q("2.5 in")
pocket2.Reversed = True

doc.recompute()
